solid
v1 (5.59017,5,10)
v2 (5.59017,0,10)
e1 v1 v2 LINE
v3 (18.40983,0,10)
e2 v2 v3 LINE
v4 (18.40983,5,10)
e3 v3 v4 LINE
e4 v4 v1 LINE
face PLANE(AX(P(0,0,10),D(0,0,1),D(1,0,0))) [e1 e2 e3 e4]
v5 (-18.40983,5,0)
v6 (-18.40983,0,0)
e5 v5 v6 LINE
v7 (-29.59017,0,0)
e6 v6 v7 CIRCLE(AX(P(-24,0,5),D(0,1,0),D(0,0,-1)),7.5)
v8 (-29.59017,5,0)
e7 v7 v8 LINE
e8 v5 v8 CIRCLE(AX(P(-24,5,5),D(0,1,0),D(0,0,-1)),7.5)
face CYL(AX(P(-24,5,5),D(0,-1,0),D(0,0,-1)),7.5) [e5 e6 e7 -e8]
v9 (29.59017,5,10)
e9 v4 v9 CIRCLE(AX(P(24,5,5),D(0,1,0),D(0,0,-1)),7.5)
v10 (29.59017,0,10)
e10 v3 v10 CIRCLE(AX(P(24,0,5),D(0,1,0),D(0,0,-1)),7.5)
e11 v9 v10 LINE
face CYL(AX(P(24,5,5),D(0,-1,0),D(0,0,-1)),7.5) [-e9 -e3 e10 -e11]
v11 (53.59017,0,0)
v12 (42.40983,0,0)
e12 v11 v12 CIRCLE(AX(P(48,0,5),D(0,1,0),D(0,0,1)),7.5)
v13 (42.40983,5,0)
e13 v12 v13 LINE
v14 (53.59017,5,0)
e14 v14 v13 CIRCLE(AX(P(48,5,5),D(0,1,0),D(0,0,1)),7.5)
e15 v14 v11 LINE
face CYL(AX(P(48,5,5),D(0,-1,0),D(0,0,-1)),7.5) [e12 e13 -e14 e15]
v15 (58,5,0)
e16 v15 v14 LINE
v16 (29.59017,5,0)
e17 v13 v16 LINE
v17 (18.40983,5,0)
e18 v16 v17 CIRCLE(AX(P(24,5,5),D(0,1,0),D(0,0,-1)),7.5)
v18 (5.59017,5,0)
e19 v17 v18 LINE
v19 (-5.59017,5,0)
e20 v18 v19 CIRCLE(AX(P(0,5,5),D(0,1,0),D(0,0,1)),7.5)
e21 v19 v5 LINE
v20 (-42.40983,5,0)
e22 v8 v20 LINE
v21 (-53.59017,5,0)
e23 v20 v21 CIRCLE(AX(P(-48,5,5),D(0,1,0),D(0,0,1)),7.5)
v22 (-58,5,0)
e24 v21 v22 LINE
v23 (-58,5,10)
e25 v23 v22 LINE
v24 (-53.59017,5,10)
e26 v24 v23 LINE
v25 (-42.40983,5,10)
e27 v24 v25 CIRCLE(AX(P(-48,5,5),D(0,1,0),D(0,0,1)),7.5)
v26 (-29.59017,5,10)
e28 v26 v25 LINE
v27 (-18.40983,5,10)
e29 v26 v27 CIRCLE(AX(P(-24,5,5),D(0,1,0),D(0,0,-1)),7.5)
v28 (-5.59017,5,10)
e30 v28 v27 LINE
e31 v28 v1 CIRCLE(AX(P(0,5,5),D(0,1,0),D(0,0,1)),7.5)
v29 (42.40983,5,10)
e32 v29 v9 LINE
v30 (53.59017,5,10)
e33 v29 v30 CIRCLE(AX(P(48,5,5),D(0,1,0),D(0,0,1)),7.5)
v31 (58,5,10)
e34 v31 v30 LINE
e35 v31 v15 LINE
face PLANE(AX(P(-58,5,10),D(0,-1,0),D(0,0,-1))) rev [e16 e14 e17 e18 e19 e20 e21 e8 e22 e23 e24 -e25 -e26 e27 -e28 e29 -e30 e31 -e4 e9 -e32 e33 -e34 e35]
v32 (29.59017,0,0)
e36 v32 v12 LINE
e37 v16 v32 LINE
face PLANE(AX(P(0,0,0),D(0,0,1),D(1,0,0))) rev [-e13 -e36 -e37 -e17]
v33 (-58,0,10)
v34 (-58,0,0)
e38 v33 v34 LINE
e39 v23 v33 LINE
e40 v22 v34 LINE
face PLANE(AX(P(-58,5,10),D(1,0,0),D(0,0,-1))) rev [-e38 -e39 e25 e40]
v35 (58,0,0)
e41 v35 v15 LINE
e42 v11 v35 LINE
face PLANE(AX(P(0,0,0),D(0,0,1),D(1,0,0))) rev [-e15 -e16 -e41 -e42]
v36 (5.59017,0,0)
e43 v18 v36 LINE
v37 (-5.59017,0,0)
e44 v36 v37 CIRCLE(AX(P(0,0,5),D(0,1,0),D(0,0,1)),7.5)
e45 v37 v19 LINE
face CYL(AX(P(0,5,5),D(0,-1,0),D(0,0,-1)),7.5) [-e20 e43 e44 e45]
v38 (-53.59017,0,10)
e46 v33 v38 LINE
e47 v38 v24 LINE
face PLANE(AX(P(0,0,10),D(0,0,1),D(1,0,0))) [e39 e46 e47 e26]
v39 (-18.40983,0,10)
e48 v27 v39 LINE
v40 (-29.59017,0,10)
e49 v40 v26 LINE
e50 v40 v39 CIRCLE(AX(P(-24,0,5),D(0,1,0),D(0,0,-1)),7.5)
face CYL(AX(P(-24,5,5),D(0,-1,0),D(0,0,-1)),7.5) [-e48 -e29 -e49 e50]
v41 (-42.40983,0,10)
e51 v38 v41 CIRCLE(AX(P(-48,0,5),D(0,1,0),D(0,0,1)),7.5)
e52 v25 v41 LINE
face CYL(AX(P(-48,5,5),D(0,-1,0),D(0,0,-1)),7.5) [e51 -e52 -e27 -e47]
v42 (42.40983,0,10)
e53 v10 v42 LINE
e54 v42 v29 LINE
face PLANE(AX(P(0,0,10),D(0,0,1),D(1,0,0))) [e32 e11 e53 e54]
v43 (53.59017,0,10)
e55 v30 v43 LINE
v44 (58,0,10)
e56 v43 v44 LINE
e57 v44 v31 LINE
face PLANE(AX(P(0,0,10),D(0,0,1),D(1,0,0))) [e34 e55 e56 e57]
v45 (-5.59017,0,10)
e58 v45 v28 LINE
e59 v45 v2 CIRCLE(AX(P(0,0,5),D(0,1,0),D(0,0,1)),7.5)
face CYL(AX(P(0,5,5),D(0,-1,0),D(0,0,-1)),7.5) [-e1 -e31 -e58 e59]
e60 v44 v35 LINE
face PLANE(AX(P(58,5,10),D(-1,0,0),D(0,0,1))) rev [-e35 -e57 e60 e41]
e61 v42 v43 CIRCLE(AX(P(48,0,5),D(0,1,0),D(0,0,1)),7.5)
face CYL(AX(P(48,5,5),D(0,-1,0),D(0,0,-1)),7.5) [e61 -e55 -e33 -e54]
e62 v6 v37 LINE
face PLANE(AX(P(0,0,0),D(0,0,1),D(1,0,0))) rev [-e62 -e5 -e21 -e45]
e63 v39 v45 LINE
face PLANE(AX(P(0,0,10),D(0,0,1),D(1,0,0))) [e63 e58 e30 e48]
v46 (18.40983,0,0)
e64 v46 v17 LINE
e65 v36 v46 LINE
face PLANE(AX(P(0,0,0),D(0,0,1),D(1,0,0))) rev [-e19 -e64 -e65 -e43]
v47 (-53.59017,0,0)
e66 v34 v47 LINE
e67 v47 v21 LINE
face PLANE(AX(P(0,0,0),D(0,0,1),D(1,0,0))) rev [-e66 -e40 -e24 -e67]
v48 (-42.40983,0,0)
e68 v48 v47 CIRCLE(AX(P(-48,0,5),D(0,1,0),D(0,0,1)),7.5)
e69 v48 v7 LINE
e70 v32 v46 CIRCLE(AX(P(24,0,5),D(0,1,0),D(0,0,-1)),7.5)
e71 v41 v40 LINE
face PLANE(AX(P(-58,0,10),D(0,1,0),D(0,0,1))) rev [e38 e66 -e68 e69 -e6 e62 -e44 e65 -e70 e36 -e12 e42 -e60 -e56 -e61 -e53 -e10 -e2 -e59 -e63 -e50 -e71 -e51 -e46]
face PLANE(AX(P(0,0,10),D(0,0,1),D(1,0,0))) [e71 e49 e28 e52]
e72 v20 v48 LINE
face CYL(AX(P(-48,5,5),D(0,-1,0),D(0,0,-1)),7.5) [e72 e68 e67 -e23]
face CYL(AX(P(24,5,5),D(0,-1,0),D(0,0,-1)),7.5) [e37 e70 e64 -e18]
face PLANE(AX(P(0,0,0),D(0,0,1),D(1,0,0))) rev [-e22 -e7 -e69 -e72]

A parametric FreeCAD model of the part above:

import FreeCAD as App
import Part
import Sketcher
from FreeCAD import Vector


def add_polygon(sketch, points):
    """Adds a closed chain of lines whose ends are joined by coincident constraints."""
    first, n = sketch.GeometryCount, len(points)
    for a, b in zip(points, points[1:] + points[:1]):
        sketch.addGeometry(Part.LineSegment(App.Vector(*a, 0), App.Vector(*b, 0)), False)
    for i in range(n):
        sketch.addConstraint(Sketcher.Constraint("Coincident", first + i, 2, first + (i + 1) % n, 1))

doc = App.newDocument("Part")
body = doc.addObject("PartDesign::Body", "Body")

sketch1 = body.newObject("Sketcher::SketchObject", "Sketch")
sketch1.AttachmentSupport = (doc.getObject("XY_Plane"), [""])
sketch1.MapMode = "FlatFace"
add_polygon(sketch1, [(-58, 5), (-58, 0), (58, 0), (58, 5)])
sketch1.addConstraint(Sketcher.Constraint("Vertical", 0))
sketch1.addConstraint(Sketcher.Constraint("Horizontal", 1))
sketch1.addConstraint(Sketcher.Constraint("Vertical", 2))
sketch1.addConstraint(Sketcher.Constraint("Horizontal", 3))
sketch1.addConstraint(Sketcher.Constraint("Symmetric", 0, 2, 1, 2, -1, 1))
sketch1.addConstraint(Sketcher.Constraint("DistanceX", 1, 1, 1, 2, 116.0))
sketch1.addConstraint(Sketcher.Constraint("DistanceY", 0, 2, 0, 1, 5.0))
pad1 = body.newObject("PartDesign::Pad", "Pad")
pad1.Profile = sketch1
pad1.Length = 10

sketch2 = body.newObject("Sketcher::SketchObject", "Sketch001")
sketch2.AttachmentSupport = (doc.getObject("XZ_Plane"), [""])
sketch2.MapMode = "FlatFace"
sketch2.addGeometry(Part.Circle(Vector(-48, 5, 0), Vector(0, 0, 1), 8), False)
sketch2.addGeometry(Part.Circle(Vector(-24, 5, 0), Vector(0, 0, 1), 8), False)
sketch2.addGeometry(Part.Circle(Vector(0, 5, 0), Vector(0, 0, 1), 8), False)
sketch2.addGeometry(Part.Circle(Vector(24, 5, 0), Vector(0, 0, 1), 8), False)
sketch2.addGeometry(Part.Circle(Vector(48, 5, 0), Vector(0, 0, 1), 8), False)
sketch2.addConstraint(Sketcher.Constraint("Equal", 0, 1))
sketch2.addConstraint(Sketcher.Constraint("Equal", 1, 2))
sketch2.addConstraint(Sketcher.Constraint("Equal", 2, 3))
sketch2.addConstraint(Sketcher.Constraint("Equal", 3, 4))
sketch2.addConstraint(Sketcher.Constraint("Symmetric", 1, 3, 3, 3, -2))
sketch2.addConstraint(Sketcher.Constraint("Symmetric", 0, 3, 4, 3, -2))
sketch2.addConstraint(Sketcher.Constraint("PointOnObject", 2, 3, -2))
sketch2.addConstraint(Sketcher.Constraint("Horizontal", 0, 3, 1, 3))
sketch2.addConstraint(Sketcher.Constraint("Horizontal", 1, 3, 2, 3))
sketch2.addConstraint(Sketcher.Constraint("Diameter", 0, 15.0))
sketch2.addConstraint(Sketcher.Constraint("DistanceX", 0, 3, -1, 1, 48.0))
sketch2.addConstraint(Sketcher.Constraint("DistanceY", -1, 1, 0, 3, 5.0))
sketch2.addConstraint(Sketcher.Constraint("DistanceX", 1, 3, -1, 1, 24.0))
pad2 = body.newObject("PartDesign::Pad", "Pad001")
pad2.Profile = sketch2
pad2.Length = 5
pad2.Reversed = True

doc.recompute()
